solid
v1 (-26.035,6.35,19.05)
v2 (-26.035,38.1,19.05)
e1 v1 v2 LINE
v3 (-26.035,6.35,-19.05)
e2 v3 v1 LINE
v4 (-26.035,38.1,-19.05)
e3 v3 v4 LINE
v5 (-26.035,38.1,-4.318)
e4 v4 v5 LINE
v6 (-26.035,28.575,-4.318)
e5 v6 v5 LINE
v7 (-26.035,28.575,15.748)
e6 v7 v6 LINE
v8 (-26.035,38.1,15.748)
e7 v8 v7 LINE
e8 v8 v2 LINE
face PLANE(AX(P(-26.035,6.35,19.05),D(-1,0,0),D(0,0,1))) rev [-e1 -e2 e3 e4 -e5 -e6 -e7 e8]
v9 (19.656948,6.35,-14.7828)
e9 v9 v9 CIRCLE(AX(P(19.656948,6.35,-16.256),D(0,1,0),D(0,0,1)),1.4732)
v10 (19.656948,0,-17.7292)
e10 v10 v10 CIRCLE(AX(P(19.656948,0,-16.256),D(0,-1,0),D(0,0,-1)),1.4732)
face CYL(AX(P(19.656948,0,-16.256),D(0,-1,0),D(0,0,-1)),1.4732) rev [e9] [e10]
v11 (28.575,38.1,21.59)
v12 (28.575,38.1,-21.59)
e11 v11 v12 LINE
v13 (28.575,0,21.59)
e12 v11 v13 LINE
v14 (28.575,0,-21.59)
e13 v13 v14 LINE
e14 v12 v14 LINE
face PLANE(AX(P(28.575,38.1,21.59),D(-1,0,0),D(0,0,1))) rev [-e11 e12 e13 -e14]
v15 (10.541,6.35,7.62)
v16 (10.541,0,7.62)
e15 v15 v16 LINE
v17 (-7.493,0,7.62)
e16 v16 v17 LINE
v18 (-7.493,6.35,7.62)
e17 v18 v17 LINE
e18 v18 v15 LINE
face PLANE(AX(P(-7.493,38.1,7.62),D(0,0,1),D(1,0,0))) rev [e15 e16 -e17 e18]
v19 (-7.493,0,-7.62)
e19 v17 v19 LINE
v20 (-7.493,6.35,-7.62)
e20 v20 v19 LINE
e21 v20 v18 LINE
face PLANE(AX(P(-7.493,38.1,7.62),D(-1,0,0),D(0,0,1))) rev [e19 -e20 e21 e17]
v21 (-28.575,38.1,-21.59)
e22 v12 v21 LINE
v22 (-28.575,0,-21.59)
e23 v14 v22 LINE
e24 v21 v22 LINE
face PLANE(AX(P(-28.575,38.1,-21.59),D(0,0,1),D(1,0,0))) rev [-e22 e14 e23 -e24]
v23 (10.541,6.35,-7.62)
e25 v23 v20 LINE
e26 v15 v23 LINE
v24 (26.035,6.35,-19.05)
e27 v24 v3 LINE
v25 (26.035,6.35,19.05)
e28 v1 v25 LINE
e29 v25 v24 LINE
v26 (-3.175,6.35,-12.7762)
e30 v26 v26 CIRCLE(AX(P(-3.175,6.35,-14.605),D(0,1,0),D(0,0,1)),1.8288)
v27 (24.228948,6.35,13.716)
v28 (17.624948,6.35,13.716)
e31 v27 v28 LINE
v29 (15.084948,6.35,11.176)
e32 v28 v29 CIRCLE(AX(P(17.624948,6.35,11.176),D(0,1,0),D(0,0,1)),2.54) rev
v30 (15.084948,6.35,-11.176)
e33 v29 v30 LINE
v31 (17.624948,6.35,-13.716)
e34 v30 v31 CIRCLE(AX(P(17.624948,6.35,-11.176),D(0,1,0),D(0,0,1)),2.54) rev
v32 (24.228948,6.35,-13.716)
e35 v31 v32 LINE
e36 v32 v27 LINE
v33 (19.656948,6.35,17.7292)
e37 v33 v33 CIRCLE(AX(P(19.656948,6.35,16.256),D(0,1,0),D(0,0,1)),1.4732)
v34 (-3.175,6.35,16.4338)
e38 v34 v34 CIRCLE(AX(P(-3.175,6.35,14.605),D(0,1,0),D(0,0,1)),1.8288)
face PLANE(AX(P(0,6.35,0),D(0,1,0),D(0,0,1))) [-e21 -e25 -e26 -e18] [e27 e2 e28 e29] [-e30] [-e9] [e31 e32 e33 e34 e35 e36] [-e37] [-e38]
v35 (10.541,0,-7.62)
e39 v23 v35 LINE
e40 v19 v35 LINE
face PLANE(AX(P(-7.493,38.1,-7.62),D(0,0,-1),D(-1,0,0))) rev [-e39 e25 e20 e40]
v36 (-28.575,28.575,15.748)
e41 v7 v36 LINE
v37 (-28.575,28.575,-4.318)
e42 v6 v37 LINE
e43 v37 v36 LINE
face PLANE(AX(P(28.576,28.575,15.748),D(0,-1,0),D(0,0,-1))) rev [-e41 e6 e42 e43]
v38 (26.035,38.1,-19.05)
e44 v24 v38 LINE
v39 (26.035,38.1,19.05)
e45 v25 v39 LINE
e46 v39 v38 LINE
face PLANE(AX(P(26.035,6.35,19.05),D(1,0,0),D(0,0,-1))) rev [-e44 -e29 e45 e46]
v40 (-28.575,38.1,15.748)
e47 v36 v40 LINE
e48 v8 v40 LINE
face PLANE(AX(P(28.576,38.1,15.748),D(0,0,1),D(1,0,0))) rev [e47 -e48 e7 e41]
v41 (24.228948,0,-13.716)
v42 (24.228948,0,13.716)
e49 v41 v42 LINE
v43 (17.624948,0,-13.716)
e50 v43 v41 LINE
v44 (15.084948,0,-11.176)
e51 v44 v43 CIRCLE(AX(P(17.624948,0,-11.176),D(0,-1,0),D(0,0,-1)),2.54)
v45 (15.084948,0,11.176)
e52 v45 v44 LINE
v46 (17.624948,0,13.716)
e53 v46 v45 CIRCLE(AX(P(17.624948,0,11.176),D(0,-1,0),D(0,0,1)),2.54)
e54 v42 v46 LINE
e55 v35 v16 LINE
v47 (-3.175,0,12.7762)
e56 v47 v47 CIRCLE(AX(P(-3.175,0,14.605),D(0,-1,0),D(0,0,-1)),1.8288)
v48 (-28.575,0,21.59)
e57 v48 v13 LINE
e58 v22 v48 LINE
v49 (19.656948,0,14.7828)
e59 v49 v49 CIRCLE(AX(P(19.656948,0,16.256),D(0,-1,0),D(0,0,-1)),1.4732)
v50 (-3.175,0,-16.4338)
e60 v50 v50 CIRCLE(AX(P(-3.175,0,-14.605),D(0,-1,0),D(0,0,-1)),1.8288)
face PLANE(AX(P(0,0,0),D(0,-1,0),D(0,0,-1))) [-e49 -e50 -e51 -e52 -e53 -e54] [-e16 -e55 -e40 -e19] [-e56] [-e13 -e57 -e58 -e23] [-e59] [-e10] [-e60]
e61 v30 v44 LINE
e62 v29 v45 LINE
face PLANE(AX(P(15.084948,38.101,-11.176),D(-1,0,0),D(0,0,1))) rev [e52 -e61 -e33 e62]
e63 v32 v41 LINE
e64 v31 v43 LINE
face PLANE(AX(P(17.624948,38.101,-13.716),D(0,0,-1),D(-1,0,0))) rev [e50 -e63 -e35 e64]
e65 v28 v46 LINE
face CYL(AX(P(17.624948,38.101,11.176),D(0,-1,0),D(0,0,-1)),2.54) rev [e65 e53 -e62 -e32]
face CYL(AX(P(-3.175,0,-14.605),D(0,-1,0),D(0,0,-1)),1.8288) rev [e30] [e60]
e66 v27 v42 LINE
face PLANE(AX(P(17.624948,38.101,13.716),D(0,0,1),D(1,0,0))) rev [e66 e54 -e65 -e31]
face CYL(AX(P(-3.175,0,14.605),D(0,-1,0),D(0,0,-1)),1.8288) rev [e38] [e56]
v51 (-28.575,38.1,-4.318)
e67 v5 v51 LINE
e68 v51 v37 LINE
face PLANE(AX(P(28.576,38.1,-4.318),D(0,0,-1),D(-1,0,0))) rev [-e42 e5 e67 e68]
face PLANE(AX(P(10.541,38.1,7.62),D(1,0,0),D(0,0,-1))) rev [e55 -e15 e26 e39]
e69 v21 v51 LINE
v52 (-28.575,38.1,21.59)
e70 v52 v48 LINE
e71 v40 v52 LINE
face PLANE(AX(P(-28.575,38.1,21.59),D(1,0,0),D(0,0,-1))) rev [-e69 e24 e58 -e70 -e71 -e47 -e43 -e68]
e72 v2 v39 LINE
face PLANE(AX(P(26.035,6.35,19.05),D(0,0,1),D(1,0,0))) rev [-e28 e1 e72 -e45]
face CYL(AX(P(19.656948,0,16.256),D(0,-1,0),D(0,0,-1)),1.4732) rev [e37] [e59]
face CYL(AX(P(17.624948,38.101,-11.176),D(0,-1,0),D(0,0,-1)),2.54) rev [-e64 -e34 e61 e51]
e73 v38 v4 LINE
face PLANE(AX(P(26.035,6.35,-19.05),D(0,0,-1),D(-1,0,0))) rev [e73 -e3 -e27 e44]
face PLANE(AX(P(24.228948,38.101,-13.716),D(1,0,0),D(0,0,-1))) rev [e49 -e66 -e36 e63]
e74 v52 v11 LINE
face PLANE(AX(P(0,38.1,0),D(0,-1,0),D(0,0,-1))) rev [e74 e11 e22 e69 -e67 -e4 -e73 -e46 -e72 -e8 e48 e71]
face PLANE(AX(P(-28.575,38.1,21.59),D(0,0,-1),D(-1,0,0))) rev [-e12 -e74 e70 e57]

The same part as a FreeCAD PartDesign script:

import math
import FreeCAD as App
import Part
import Sketcher
Q = App.Units.Quantity

doc = App.newDocument("Part")
body = doc.addObject("PartDesign::Body", "Body")

# Sketch on XZ plane
sketch1 = body.newObject("Sketcher::SketchObject", "Sketch")
sketch1.AttachmentSupport = (doc.getObject("XZ_Plane"), [""])
sketch1.MapMode = "FlatFace"
sketch1.addGeometry(Part.LineSegment(App.Vector(-29, -22, 0), App.Vector(-29, 22, 0)), False)
sketch1.addGeometry(Part.LineSegment(App.Vector(-29, 22, 0), App.Vector(29, 22, 0)), False)
sketch1.addGeometry(Part.LineSegment(App.Vector(29, 22, 0), App.Vector(29, -22, 0)), False)
sketch1.addGeometry(Part.LineSegment(App.Vector(29, -22, 0), App.Vector(-29, -22, 0)), False)
sketch1.addConstraint(Sketcher.Constraint("Coincident", 0, 2, 1, 1))
sketch1.addConstraint(Sketcher.Constraint("Coincident", 1, 2, 2, 1))
sketch1.addConstraint(Sketcher.Constraint("Coincident", 2, 2, 3, 1))
sketch1.addConstraint(Sketcher.Constraint("Coincident", 3, 2, 0, 1))
sketch1.addConstraint(Sketcher.Constraint("Vertical", 0))
sketch1.addConstraint(Sketcher.Constraint("Horizontal", 1))
sketch1.addConstraint(Sketcher.Constraint("Vertical", 2))
sketch1.addConstraint(Sketcher.Constraint("Horizontal", 3))
sketch1.addConstraint(Sketcher.Constraint("Symmetric", 0, 2, 2, 2, -1, 1))
sketch1.addConstraint(Sketcher.Constraint("DistanceY", 0, 1, 0, 2, Q("1.7 in")))
sketch1.addConstraint(Sketcher.Constraint("DistanceX", 1, 1, 1, 2, Q("2.25 in")))
pad1 = body.newObject("PartDesign::Pad", "Pad")
pad1.Profile = sketch1
pad1.Length = Q("1.5 in")
pad1.Reversed = True

# Sketch on XZ plane
sketch2 = body.newObject("Sketcher::SketchObject", "Sketch001")
sketch2.AttachmentSupport = (doc.getObject("XZ_Plane"), [""])
sketch2.MapMode = "FlatFace"
sketch2.AttachmentOffset = App.Placement(App.Vector(0, 0, -1.5 * 25.4), App.Rotation())
sketch2.addGeometry(Part.LineSegment(App.Vector(-26, -19, 0), App.Vector(-26, 19, 0)), False)
sketch2.addGeometry(Part.LineSegment(App.Vector(-26, 19, 0), App.Vector(26, 19, 0)), False)
sketch2.addGeometry(Part.LineSegment(App.Vector(26, 19, 0), App.Vector(26, -19, 0)), False)
sketch2.addGeometry(Part.LineSegment(App.Vector(26, -19, 0), App.Vector(-26, -19, 0)), False)
sketch2.addConstraint(Sketcher.Constraint("Coincident", 0, 2, 1, 1))
sketch2.addConstraint(Sketcher.Constraint("Coincident", 1, 2, 2, 1))
sketch2.addConstraint(Sketcher.Constraint("Coincident", 2, 2, 3, 1))
sketch2.addConstraint(Sketcher.Constraint("Coincident", 3, 2, 0, 1))
sketch2.addConstraint(Sketcher.Constraint("Vertical", 0))
sketch2.addConstraint(Sketcher.Constraint("Horizontal", 1))
sketch2.addConstraint(Sketcher.Constraint("Vertical", 2))
sketch2.addConstraint(Sketcher.Constraint("Horizontal", 3))
sketch2.addConstraint(Sketcher.Constraint("Symmetric", 0, 2, 2, 2, -1, 1))
sketch2.addConstraint(Sketcher.Constraint("DistanceY", 0, 1, 0, 2, Q("1.5 in")))
sketch2.addConstraint(Sketcher.Constraint("DistanceX", 1, 1, 1, 2, Q("2.05 in")))
pocket1 = body.newObject("PartDesign::Pocket", "Pocket")
pocket1.Profile = sketch2
pocket1.Length = Q("1.25 in")
pocket1.Reversed = True

# Sketch on XZ plane
sketch3 = body.newObject("Sketcher::SketchObject", "Sketch002")
sketch3.AttachmentSupport = (doc.getObject("XZ_Plane"), [""])
sketch3.MapMode = "FlatFace"
sketch3.addGeometry(Part.LineSegment(App.Vector(11, -8, 0), App.Vector(11, 8, 0)), False)
sketch3.addGeometry(Part.LineSegment(App.Vector(11, 8, 0), App.Vector(-7, 8, 0)), False)
sketch3.addGeometry(Part.LineSegment(App.Vector(-7, 8, 0), App.Vector(-7, -8, 0)), False)
sketch3.addGeometry(Part.LineSegment(App.Vector(-7, -8, 0), App.Vector(11, -8, 0)), False)
sketch3.addConstraint(Sketcher.Constraint("Coincident", 0, 2, 1, 1))
sketch3.addConstraint(Sketcher.Constraint("Coincident", 1, 2, 2, 1))
sketch3.addConstraint(Sketcher.Constraint("Coincident", 2, 2, 3, 1))
sketch3.addConstraint(Sketcher.Constraint("Coincident", 3, 2, 0, 1))
sketch3.addConstraint(Sketcher.Constraint("Vertical", 0))
sketch3.addConstraint(Sketcher.Constraint("Horizontal", 1))
sketch3.addConstraint(Sketcher.Constraint("Vertical", 2))
sketch3.addConstraint(Sketcher.Constraint("Horizontal", 3))
sketch3.addConstraint(Sketcher.Constraint("DistanceY", 0, 1, 0, 2, Q("0.6 in")))
sketch3.addConstraint(Sketcher.Constraint("DistanceX", 1, 2, 1, 1, Q("0.71 in")))
sketch3.addConstraint(Sketcher.Constraint("DistanceY", -1, 1, 0, 2, Q("0.3 in")))
sketch3.addConstraint(Sketcher.Constraint("DistanceX", -1, 1, 0, 2, Q("0.415 in")))
pocket2 = body.newObject("PartDesign::Pocket", "Pocket001")
pocket2.Profile = sketch3
pocket2.Type = "ThroughAll"

# Sketch on YZ plane
sketch4 = body.newObject("Sketcher::SketchObject", "Sketch003")
sketch4.AttachmentSupport = (doc.getObject("YZ_Plane"), [""])
sketch4.MapMode = "FlatFace"
sketch4.AttachmentOffset = App.Placement(App.Vector(0, 0, -1.125 * 25.4), App.Rotation())
sketch4.addGeometry(Part.LineSegment(App.Vector(38, -4, 0), App.Vector(29, -4, 0)), False)
sketch4.addGeometry(Part.LineSegment(App.Vector(29, -4, 0), App.Vector(29, 16, 0)), False)
sketch4.addGeometry(Part.LineSegment(App.Vector(29, 16, 0), App.Vector(38, 16, 0)), False)
sketch4.addGeometry(Part.LineSegment(App.Vector(38, 16, 0), App.Vector(38, -4, 0)), False)
sketch4.addConstraint(Sketcher.Constraint("Coincident", 0, 2, 1, 1))
sketch4.addConstraint(Sketcher.Constraint("Coincident", 1, 2, 2, 1))
sketch4.addConstraint(Sketcher.Constraint("Coincident", 2, 2, 3, 1))
sketch4.addConstraint(Sketcher.Constraint("Coincident", 3, 2, 0, 1))
sketch4.addConstraint(Sketcher.Constraint("Horizontal", 0))
sketch4.addConstraint(Sketcher.Constraint("Vertical", 1))
sketch4.addConstraint(Sketcher.Constraint("Horizontal", 2))
sketch4.addConstraint(Sketcher.Constraint("Vertical", 3))
sketch4.addConstraint(Sketcher.Constraint("DistanceY", 1, 1, 1, 2, Q("0.79 in")))
sketch4.addConstraint(Sketcher.Constraint("DistanceX", -1, 1, 2, 2, Q("1.5 in")))
sketch4.addConstraint(Sketcher.Constraint("DistanceX", 0, 2, 0, 1, Q("0.375 in")))
sketch4.addConstraint(Sketcher.Constraint("DistanceY", 0, 2, -1, 1, Q("0.17 in")))
pocket3 = body.newObject("PartDesign::Pocket", "Pocket002")
pocket3.Profile = sketch4
pocket3.Type = "UpToFirst"
pocket3.Reversed = True

# Sketch on XZ plane
sketch5 = body.newObject("Sketcher::SketchObject", "Sketch004")
sketch5.AttachmentSupport = (doc.getObject("XZ_Plane"), [""])
sketch5.MapMode = "FlatFace"
sketch5.addGeometry(Part.LineSegment(App.Vector(17.6, -13.7, 0), App.Vector(24.2, -13.7, 0)), False)
sketch5.addGeometry(Part.LineSegment(App.Vector(24.2, -13.7, 0), App.Vector(24.2, 13.7, 0)), False)
sketch5.addGeometry(Part.LineSegment(App.Vector(24.2, 13.7, 0), App.Vector(17.6, 13.7, 0)), False)
sketch5.addGeometry(Part.ArcOfCircle(Part.Circle(App.Vector(17.6, 11.2, 0), App.Vector(0, 0, 1), 2.5), math.radians(90), math.radians(180)), False)
sketch5.addGeometry(Part.LineSegment(App.Vector(15.1, 11.2, 0), App.Vector(15.1, -11.2, 0)), False)
sketch5.addGeometry(Part.ArcOfCircle(Part.Circle(App.Vector(17.6, -11.2, 0), App.Vector(0, 0, 1), 2.5), math.radians(-180), math.radians(-90)), False)
sketch5.addConstraint(Sketcher.Constraint("Coincident", 0, 2, 1, 1))
sketch5.addConstraint(Sketcher.Constraint("Coincident", 1, 2, 2, 1))
sketch5.addConstraint(Sketcher.Constraint("Tangent", 2, 2, 3, 1))
sketch5.addConstraint(Sketcher.Constraint("Tangent", 3, 2, 4, 1))
sketch5.addConstraint(Sketcher.Constraint("Tangent", 4, 2, 5, 1))
sketch5.addConstraint(Sketcher.Constraint("Tangent", 5, 2, 0, 1))
sketch5.addConstraint(Sketcher.Constraint("Horizontal", 0))
sketch5.addConstraint(Sketcher.Constraint("Vertical", 1))
sketch5.addConstraint(Sketcher.Constraint("Horizontal", 2))
sketch5.addConstraint(Sketcher.Constraint("Vertical", 4))
sketch5.addConstraint(Sketcher.Constraint("Equal", 3, 5))
sketch5.addConstraint(Sketcher.Constraint("Radius", 3, Q("0.1 in")))
sketch5.addConstraint(Sketcher.Constraint("DistanceX", 0, 1, 0, 2, Q("0.26 in")))
sketch5.addConstraint(Sketcher.Constraint("DistanceY", 1, 1, 1, 2, Q("1.08 in")))
sketch5.addConstraint(Sketcher.Constraint("DistanceY", -1, 1, 3, 3, Q("0.44 in")))
sketch5.addConstraint(Sketcher.Constraint("DistanceX", -1, 1, 3, 3, Q("17.624948 mm")))
pocket4 = body.newObject("PartDesign::Pocket", "Pocket003")
pocket4.Profile = sketch5
pocket4.Type = "UpToFirst"

# Sketch on XZ plane
sketch6 = body.newObject("Sketcher::SketchObject", "Sketch005")
sketch6.AttachmentSupport = (doc.getObject("XZ_Plane"), [""])
sketch6.MapMode = "FlatFace"
sketch6.addGeometry(Part.Circle(App.Vector(19.7, -16.3, 0), App.Vector(0, 0, 1), 1.5), False)
sketch6.addGeometry(Part.Circle(App.Vector(19.7, 16.3, 0), App.Vector(0, 0, 1), 1.5), False)
sketch6.addConstraint(Sketcher.Constraint("Equal", 0, 1))
sketch6.addConstraint(Sketcher.Constraint("Symmetric", 0, 3, 1, 3, -1))
sketch6.addConstraint(Sketcher.Constraint("Diameter", 0, Q("0.116 in")))
sketch6.addConstraint(Sketcher.Constraint("DistanceY", 0, 3, -1, 1, Q("0.64 in")))
sketch6.addConstraint(Sketcher.Constraint("DistanceX", -1, 1, 0, 3, Q("19.656948 mm")))
doc.recompute()
hole = body.newObject("PartDesign::Hole", "Hole")
hole.Profile = sketch6
hole.ThreadType = "None"
hole.Diameter = Q("0.116 in")
hole.DepthType = "ThroughAll"

# Sketch on XZ plane
sketch7 = body.newObject("Sketcher::SketchObject", "Sketch006")
sketch7.AttachmentSupport = (doc.getObject("XZ_Plane"), [""])
sketch7.MapMode = "FlatFace"
sketch7.addGeometry(Part.Circle(App.Vector(-3.2, -14.6, 0), App.Vector(0, 0, 1), 1.8), False)
sketch7.addGeometry(Part.Circle(App.Vector(-3.2, 14.6, 0), App.Vector(0, 0, 1), 1.8), False)
sketch7.addConstraint(Sketcher.Constraint("Equal", 0, 1))
sketch7.addConstraint(Sketcher.Constraint("Symmetric", 0, 3, 1, 3, -1))
sketch7.addConstraint(Sketcher.Constraint("Diameter", 0, Q("0.144 in")))
sketch7.addConstraint(Sketcher.Constraint("DistanceY", 0, 3, 1, 3, Q("1.15 in")))
sketch7.addConstraint(Sketcher.Constraint("DistanceX", 0, 3, -1, 1, Q("0.125 in")))
doc.recompute()
hole2 = body.newObject("PartDesign::Hole", "Hole001")
hole2.Profile = sketch7
hole2.ThreadType = "None"
hole2.Diameter = Q("0.144 in")
hole2.DepthType = "ThroughAll"

doc.recompute()
